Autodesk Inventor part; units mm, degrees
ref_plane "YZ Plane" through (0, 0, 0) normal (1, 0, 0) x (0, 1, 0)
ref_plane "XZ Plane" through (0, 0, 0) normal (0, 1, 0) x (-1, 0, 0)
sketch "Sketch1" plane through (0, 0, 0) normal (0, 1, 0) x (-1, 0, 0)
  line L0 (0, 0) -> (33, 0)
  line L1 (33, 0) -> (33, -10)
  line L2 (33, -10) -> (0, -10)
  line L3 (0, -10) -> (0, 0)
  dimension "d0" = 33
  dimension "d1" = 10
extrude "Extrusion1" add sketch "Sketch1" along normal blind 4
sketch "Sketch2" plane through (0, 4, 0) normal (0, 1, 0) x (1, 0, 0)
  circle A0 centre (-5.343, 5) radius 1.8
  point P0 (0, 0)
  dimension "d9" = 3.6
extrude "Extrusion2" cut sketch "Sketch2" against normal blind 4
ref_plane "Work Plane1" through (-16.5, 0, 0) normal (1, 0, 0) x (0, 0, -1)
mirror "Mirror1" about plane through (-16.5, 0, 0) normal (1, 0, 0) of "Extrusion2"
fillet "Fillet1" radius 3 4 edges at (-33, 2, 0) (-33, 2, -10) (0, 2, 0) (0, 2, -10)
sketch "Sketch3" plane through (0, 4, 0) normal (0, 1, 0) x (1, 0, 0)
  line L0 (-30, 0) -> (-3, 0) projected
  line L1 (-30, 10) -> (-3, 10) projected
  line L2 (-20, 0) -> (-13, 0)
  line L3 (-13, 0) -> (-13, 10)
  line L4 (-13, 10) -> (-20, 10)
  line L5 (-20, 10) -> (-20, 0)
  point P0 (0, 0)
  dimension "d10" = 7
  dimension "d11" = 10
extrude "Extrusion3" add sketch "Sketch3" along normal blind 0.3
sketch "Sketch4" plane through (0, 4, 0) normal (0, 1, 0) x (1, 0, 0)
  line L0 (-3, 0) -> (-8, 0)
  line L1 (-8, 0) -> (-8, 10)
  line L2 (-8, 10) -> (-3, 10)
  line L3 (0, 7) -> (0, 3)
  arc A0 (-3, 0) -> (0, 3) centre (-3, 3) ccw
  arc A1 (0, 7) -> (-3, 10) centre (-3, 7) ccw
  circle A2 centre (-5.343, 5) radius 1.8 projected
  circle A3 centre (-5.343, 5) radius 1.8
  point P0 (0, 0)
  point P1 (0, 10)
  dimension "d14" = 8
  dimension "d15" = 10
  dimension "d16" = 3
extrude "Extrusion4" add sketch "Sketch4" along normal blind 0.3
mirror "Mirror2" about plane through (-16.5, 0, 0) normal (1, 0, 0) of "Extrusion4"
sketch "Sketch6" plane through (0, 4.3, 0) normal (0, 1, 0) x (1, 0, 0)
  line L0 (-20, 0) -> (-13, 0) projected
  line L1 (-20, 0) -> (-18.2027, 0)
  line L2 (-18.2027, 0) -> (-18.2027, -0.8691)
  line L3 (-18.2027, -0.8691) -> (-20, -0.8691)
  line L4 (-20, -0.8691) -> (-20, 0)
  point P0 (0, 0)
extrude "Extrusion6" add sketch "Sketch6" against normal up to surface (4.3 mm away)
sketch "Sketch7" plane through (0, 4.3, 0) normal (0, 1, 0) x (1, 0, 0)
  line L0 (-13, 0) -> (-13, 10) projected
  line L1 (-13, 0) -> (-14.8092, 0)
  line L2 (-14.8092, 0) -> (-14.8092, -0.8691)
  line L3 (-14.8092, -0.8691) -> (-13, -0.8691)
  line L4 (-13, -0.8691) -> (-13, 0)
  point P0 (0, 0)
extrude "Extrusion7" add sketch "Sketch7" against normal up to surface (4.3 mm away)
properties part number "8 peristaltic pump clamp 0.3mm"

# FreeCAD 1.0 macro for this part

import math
import FreeCAD as App
import Part
import Sketcher


def edges_at(feature, points):
    """Names of the edges that pass closest to the given points."""
    edges = feature.Shape.Edges
    near = lambda p: min(range(len(edges)), key=lambda i: edges[i].distToShape(Part.Vertex(*p))[0])
    return sorted({f"Edge{near(p) + 1}" for p in points})

doc = App.newDocument("Part")
body = doc.addObject("PartDesign::Body", "Body")

# Sketch on XZ plane
sketch1 = body.newObject("Sketcher::SketchObject", "Sketch")
sketch1.AttachmentSupport = (doc.getObject("XZ_Plane"), [""])
sketch1.MapMode = "FlatFace"
sketch1.addGeometry([
    Part.LineSegment(App.Vector(-33, 0, 0), App.Vector(0, 0, 0)),
    Part.LineSegment(App.Vector(0, 0, 0), App.Vector(0, -10, 0)),
    Part.LineSegment(App.Vector(0, -10, 0), App.Vector(-33, -10, 0)),
    Part.LineSegment(App.Vector(-33, -10, 0), App.Vector(-33, 0, 0)),
], False)
sketch1.addConstraint([
    Sketcher.Constraint("Coincident", 0, 2, 1, 1),
    Sketcher.Constraint("Coincident", 1, 2, 2, 1),
    Sketcher.Constraint("Coincident", 2, 2, 3, 1),
    Sketcher.Constraint("Coincident", 3, 2, 0, 1),
    Sketcher.Constraint("Horizontal", 0),
    Sketcher.Constraint("Vertical", 1),
    Sketcher.Constraint("Horizontal", 2),
    Sketcher.Constraint("Vertical", 3),
    Sketcher.Constraint("Coincident", 0, 2, -1, 1),
    Sketcher.Constraint("DistanceX", 0, 1, 0, 2, 33.0),
    Sketcher.Constraint("DistanceY", 1, 2, 1, 1, 10.0),
])
pad1 = body.newObject("PartDesign::Pad", "Pad")
pad1.Profile = sketch1
pad1.Length = 4
pad1.Reversed = True

# Sketch on XZ plane
sketch2 = body.newObject("Sketcher::SketchObject", "Sketch001")
sketch2.AttachmentSupport = (doc.getObject("XZ_Plane"), [""])
sketch2.MapMode = "FlatFace"
sketch2.AttachmentOffset = App.Placement(App.Vector(0, 0, -4), App.Rotation())
sketch2.addGeometry(Part.Circle(App.Vector(-5.3, -5, 0), App.Vector(0, 0, 1), 1.8), False)
sketch2.addConstraint([
    Sketcher.Constraint("Diameter", 0, 3.6),
    Sketcher.Constraint("DistanceY", 0, 3, -1, 1, 5.0),
    Sketcher.Constraint("DistanceX", 0, 3, -1, 1, 5.343),
])
pocket1 = body.newObject("PartDesign::Pocket", "Pocket")
pocket1.Profile = sketch2
pocket1.Length = 4
pocket1.Reversed = True
doc.recompute()

datumplane = body.newObject("PartDesign::Plane", "DatumPlane")
datumplane.AttachmentSupport = (doc.getObject("YZ_Plane"), [""])
datumplane.MapMode = "FlatFace"
datumplane.AttachmentOffset = App.Placement(App.Vector(0, 0, -16.5), App.Rotation())
mirrored = body.newObject("PartDesign::Mirrored", "Mirrored")
mirrored.Originals = [pocket1]
mirrored.MirrorPlane = (datumplane, [""])
body.Tip = mirrored
doc.recompute()

fillet = body.newObject("PartDesign::Fillet", "Fillet")
fillet.Base = (mirrored, edges_at(mirrored, [
    (-33, 2, 0),
    (-33, 2, -10),
    (0, 2, 0),
    (0, 2, -10),
]))
fillet.Radius = 3

# Sketch on XZ plane
sketch3 = body.newObject("Sketcher::SketchObject", "Sketch002")
sketch3.AttachmentSupport = (doc.getObject("XZ_Plane"), [""])
sketch3.MapMode = "FlatFace"
sketch3.AttachmentOffset = App.Placement(App.Vector(0, 0, -4), App.Rotation())
sketch3.addGeometry([
    Part.LineSegment(App.Vector(-20, -10, 0), App.Vector(-20, 0, 0)),
    Part.LineSegment(App.Vector(-20, 0, 0), App.Vector(-13, 0, 0)),
    Part.LineSegment(App.Vector(-13, 0, 0), App.Vector(-13, -10, 0)),
    Part.LineSegment(App.Vector(-13, -10, 0), App.Vector(-20, -10, 0)),
], False)
sketch3.addConstraint([
    Sketcher.Constraint("Coincident", 0, 2, 1, 1),
    Sketcher.Constraint("Coincident", 1, 2, 2, 1),
    Sketcher.Constraint("Coincident", 2, 2, 3, 1),
    Sketcher.Constraint("Coincident", 3, 2, 0, 1),
    Sketcher.Constraint("Vertical", 0),
    Sketcher.Constraint("Horizontal", 1),
    Sketcher.Constraint("Vertical", 2),
    Sketcher.Constraint("Horizontal", 3),
    Sketcher.Constraint("PointOnObject", 0, 2, -1),
    Sketcher.Constraint("DistanceX", 1, 1, 1, 2, 7.0),
    Sketcher.Constraint("DistanceY", 0, 1, 0, 2, 10.0),
    Sketcher.Constraint("DistanceX", 0, 2, -1, 1, 20.0),
])
pad2 = body.newObject("PartDesign::Pad", "Pad001")
pad2.Profile = sketch3
pad2.Length = 0.3
pad2.Reversed = True

# Sketch on XZ plane
sketch4 = body.newObject("Sketcher::SketchObject", "Sketch003")
sketch4.AttachmentSupport = (doc.getObject("XZ_Plane"), [""])
sketch4.MapMode = "FlatFace"
sketch4.AttachmentOffset = App.Placement(App.Vector(0, 0, -4), App.Rotation())
sketch4.addGeometry([
    Part.LineSegment(App.Vector(-8, 0, 0), App.Vector(-3, 0, 0)),  # 0
    Part.ArcOfCircle(Part.Circle(App.Vector(-3, -3, 0), App.Vector(0, 0, 1), 3), math.radians(0), math.radians(90)),  # 1
    Part.LineSegment(App.Vector(0, -3, 0), App.Vector(0, -7, 0)),  # 2
    Part.ArcOfCircle(Part.Circle(App.Vector(-3, -7, 0), App.Vector(0, 0, 1), 3), math.radians(-90), math.radians(0)),  # 3
    Part.LineSegment(App.Vector(-3, -10, 0), App.Vector(-8, -10, 0)),  # 4
    Part.LineSegment(App.Vector(-8, -10, 0), App.Vector(-8, 0, 0)),  # 5
    Part.Circle(App.Vector(-5.3, -5, 0), App.Vector(0, 0, 1), 1.8),  # 6
], False)
sketch4.addConstraint([
    Sketcher.Constraint("Tangent", 0, 2, 1, 2),
    Sketcher.Constraint("Tangent", 1, 1, 2, 1),
    Sketcher.Constraint("Tangent", 2, 2, 3, 2),
    Sketcher.Constraint("Tangent", 3, 1, 4, 1),
    Sketcher.Constraint("Coincident", 4, 2, 5, 1),
    Sketcher.Constraint("Coincident", 5, 2, 0, 1),
    Sketcher.Constraint("Horizontal", 0),
    Sketcher.Constraint("Vertical", 2),
    Sketcher.Constraint("Horizontal", 4),
    Sketcher.Constraint("Vertical", 5),
    Sketcher.Constraint("Equal", 1, 3),
    Sketcher.Constraint("PointOnObject", 0, 2, -1),
    Sketcher.Constraint("PointOnObject", 1, 1, -2),
    Sketcher.Constraint("Radius", 1, 3.0),
    Sketcher.Constraint("DistanceY", 5, 1, 5, 2, 10.0),
    Sketcher.Constraint("DistanceX", 4, 2, -1, 1, 8.0),
    Sketcher.Constraint("Diameter", 6, 3.6),
    Sketcher.Constraint("DistanceY", 6, 3, -1, 1, 5.0),
    Sketcher.Constraint("DistanceX", 6, 3, -1, 1, 5.343),
])
pad3 = body.newObject("PartDesign::Pad", "Pad002")
pad3.Profile = sketch4
pad3.Length = 0.3
pad3.Reversed = True
doc.recompute()

datumplane2 = body.newObject("PartDesign::Plane", "DatumPlane001")
datumplane2.AttachmentSupport = (doc.getObject("YZ_Plane"), [""])
datumplane2.MapMode = "FlatFace"
datumplane2.AttachmentOffset = App.Placement(App.Vector(0, 0, -16.5), App.Rotation())
mirrored2 = body.newObject("PartDesign::Mirrored", "Mirrored001")
mirrored2.Originals = [pad3]
mirrored2.MirrorPlane = (datumplane2, [""])
body.Tip = mirrored2

# Sketch on XZ plane
sketch5 = body.newObject("Sketcher::SketchObject", "Sketch004")
sketch5.AttachmentSupport = (doc.getObject("XZ_Plane"), [""])
sketch5.MapMode = "FlatFace"
sketch5.AttachmentOffset = App.Placement(App.Vector(0, 0, -4.3), App.Rotation())
sketch5.addGeometry([
    Part.LineSegment(App.Vector(-18.2, 0, 0), App.Vector(-20, 0, 0)),
    Part.LineSegment(App.Vector(-20, 0, 0), App.Vector(-20, 0.9, 0)),
    Part.LineSegment(App.Vector(-20, 0.9, 0), App.Vector(-18.2, 0.9, 0)),
    Part.LineSegment(App.Vector(-18.2, 0.9, 0), App.Vector(-18.2, 0, 0)),
], False)
sketch5.addConstraint([
    Sketcher.Constraint("Coincident", 0, 2, 1, 1),
    Sketcher.Constraint("Coincident", 1, 2, 2, 1),
    Sketcher.Constraint("Coincident", 2, 2, 3, 1),
    Sketcher.Constraint("Coincident", 3, 2, 0, 1),
    Sketcher.Constraint("Horizontal", 0),
    Sketcher.Constraint("Vertical", 1),
    Sketcher.Constraint("Horizontal", 2),
    Sketcher.Constraint("Vertical", 3),
    Sketcher.Constraint("PointOnObject", 0, 2, -1),
    Sketcher.Constraint("DistanceX", 0, 2, -1, 1, 20.0),
    Sketcher.Constraint("DistanceY", 1, 1, 1, 2, 0.869),
    Sketcher.Constraint("DistanceX", 0, 2, 0, 1, 1.7973),
])
pad4 = body.newObject("PartDesign::Pad", "Pad003")
pad4.Profile = sketch5
pad4.Length = 4.3

# Sketch on XZ plane
sketch6 = body.newObject("Sketcher::SketchObject", "Sketch005")
sketch6.AttachmentSupport = (doc.getObject("XZ_Plane"), [""])
sketch6.MapMode = "FlatFace"
sketch6.AttachmentOffset = App.Placement(App.Vector(0, 0, -4.3), App.Rotation())
sketch6.addGeometry([
    Part.LineSegment(App.Vector(-13, 0.9, 0), App.Vector(-13, 0, 0)),
    Part.LineSegment(App.Vector(-13, 0, 0), App.Vector(-14.8, 0, 0)),
    Part.LineSegment(App.Vector(-14.8, 0, 0), App.Vector(-14.8, 0.9, 0)),
    Part.LineSegment(App.Vector(-14.8, 0.9, 0), App.Vector(-13, 0.9, 0)),
], False)
sketch6.addConstraint([
    Sketcher.Constraint("Coincident", 0, 2, 1, 1),
    Sketcher.Constraint("Coincident", 1, 2, 2, 1),
    Sketcher.Constraint("Coincident", 2, 2, 3, 1),
    Sketcher.Constraint("Coincident", 3, 2, 0, 1),
    Sketcher.Constraint("Vertical", 0),
    Sketcher.Constraint("Horizontal", 1),
    Sketcher.Constraint("Vertical", 2),
    Sketcher.Constraint("Horizontal", 3),
    Sketcher.Constraint("PointOnObject", 0, 2, -1),
    Sketcher.Constraint("DistanceX", 0, 2, -1, 1, 13.0),
    Sketcher.Constraint("DistanceY", 0, 2, 0, 1, 0.869),
    Sketcher.Constraint("DistanceX", 1, 2, 1, 1, 1.8092),
])
pad5 = body.newObject("PartDesign::Pad", "Pad004")
pad5.Profile = sketch6
pad5.Length = 4.3

doc.recompute()
